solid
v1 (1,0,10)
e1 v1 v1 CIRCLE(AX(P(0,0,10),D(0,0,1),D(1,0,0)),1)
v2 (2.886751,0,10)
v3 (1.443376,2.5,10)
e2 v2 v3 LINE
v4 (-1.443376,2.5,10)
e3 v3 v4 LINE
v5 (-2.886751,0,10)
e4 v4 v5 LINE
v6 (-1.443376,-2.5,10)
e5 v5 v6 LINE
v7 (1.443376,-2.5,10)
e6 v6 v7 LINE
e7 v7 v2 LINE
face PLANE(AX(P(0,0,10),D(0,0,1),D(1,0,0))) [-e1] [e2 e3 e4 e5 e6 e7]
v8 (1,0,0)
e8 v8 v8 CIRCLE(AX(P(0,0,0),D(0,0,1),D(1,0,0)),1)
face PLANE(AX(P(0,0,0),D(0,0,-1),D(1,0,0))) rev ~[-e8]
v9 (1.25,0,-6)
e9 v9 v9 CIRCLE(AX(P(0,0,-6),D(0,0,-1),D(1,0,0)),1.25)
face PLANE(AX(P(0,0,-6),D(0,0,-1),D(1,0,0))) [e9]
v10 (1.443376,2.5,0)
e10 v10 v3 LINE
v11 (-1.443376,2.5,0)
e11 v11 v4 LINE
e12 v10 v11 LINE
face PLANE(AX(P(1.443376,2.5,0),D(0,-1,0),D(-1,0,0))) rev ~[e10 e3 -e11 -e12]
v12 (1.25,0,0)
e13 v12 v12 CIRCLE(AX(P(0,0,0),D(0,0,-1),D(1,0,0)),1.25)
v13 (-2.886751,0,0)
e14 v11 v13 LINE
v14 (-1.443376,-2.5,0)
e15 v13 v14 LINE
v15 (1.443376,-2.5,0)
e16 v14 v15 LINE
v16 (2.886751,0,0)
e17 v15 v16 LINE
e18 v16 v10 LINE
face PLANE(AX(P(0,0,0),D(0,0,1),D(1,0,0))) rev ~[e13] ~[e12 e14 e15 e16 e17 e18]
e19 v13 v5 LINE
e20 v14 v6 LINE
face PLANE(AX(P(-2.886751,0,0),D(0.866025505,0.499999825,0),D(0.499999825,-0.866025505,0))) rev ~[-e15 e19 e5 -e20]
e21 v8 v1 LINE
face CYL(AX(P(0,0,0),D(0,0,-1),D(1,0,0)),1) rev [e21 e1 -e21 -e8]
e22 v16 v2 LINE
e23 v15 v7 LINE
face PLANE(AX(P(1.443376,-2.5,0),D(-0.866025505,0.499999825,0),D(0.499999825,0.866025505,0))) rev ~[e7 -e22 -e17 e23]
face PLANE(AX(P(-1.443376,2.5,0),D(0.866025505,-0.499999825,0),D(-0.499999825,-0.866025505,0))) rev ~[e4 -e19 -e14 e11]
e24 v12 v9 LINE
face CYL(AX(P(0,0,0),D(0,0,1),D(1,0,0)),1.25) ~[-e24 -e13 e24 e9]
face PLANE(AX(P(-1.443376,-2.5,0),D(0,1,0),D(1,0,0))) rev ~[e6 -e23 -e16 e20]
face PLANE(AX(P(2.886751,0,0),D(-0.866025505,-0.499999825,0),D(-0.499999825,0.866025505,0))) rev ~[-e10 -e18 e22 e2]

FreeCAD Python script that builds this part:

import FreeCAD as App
import Part
import Sketcher
Q = App.Units.Quantity

doc = App.newDocument("Part")
body = doc.addObject("PartDesign::Body", "Body")

# Sketch on XY plane
sketch1 = body.newObject("Sketcher::SketchObject", "Sketch")
sketch1.AttachmentSupport = (doc.getObject("XY_Plane"), [""])
sketch1.MapMode = "FlatFace"
sketch1.addGeometry([
    Part.LineSegment(App.Vector(1.4, -2.5, 0), App.Vector(2.9, 0, 0)),  # 0
    Part.LineSegment(App.Vector(2.9, 0, 0), App.Vector(1.4, 2.5, 0)),  # 1
    Part.LineSegment(App.Vector(1.4, 2.5, 0), App.Vector(-1.4, 2.5, 0)),  # 2
    Part.LineSegment(App.Vector(-1.4, 2.5, 0), App.Vector(-2.9, 0, 0)),  # 3
    Part.LineSegment(App.Vector(-2.9, 0, 0), App.Vector(-1.4, -2.5, 0)),  # 4
    Part.LineSegment(App.Vector(-1.4, -2.5, 0), App.Vector(1.4, -2.5, 0)),  # 5
    Part.Circle(App.Vector(0, 0, 0), App.Vector(0, 0, 1), 1),  # 6
], False)
sketch1.addConstraint([
    Sketcher.Constraint("Coincident", 0, 2, 1, 1),
    Sketcher.Constraint("Coincident", 1, 2, 2, 1),
    Sketcher.Constraint("Coincident", 2, 2, 3, 1),
    Sketcher.Constraint("Coincident", 3, 2, 4, 1),
    Sketcher.Constraint("Coincident", 4, 2, 5, 1),
    Sketcher.Constraint("Coincident", 5, 2, 0, 1),
    Sketcher.Constraint("Horizontal", 2),
    Sketcher.Constraint("Horizontal", 5),
    Sketcher.Constraint("Coincident", 6, 3, -1, 1),
    Sketcher.Constraint("Symmetric", 0, 2, 3, 2, -1, 1),
    Sketcher.Constraint("Symmetric", 1, 2, 4, 2, -1, 1),
    Sketcher.Constraint("PointOnObject", 0, 2, -1),
    Sketcher.Constraint("Parallel", 0, 3),
    Sketcher.Constraint("Vertical", 2, 2, 4, 2),
    Sketcher.Constraint("Diameter", 6, Q("2 mm")),
    Sketcher.Constraint("Angle", 0, Q("60.000012 deg")),
    Sketcher.Constraint("DistanceY", 4, 2, 2, 2, Q("5 mm")),
    Sketcher.Constraint("DistanceX", 2, 2, 2, 1, Q("2.886752 mm")),
])
pad1 = body.newObject("PartDesign::Pad", "Pad")
pad1.Profile = sketch1
pad1.Length = 10

# Sketch on XY plane
sketch2 = body.newObject("Sketcher::SketchObject", "Sketch001")
sketch2.AttachmentSupport = (doc.getObject("XY_Plane"), [""])
sketch2.MapMode = "FlatFace"
sketch2.addGeometry(Part.Circle(App.Vector(0, 0, 0), App.Vector(0, 0, 1), 1.2), False)
sketch2.addConstraint([
    Sketcher.Constraint("Coincident", 0, 3, -1, 1),
    Sketcher.Constraint("Diameter", 0, Q("2.5 mm")),
])
pad2 = body.newObject("PartDesign::Pad", "Pad001")
pad2.Profile = sketch2
pad2.Length = 6
pad2.Reversed = True

doc.recompute()
